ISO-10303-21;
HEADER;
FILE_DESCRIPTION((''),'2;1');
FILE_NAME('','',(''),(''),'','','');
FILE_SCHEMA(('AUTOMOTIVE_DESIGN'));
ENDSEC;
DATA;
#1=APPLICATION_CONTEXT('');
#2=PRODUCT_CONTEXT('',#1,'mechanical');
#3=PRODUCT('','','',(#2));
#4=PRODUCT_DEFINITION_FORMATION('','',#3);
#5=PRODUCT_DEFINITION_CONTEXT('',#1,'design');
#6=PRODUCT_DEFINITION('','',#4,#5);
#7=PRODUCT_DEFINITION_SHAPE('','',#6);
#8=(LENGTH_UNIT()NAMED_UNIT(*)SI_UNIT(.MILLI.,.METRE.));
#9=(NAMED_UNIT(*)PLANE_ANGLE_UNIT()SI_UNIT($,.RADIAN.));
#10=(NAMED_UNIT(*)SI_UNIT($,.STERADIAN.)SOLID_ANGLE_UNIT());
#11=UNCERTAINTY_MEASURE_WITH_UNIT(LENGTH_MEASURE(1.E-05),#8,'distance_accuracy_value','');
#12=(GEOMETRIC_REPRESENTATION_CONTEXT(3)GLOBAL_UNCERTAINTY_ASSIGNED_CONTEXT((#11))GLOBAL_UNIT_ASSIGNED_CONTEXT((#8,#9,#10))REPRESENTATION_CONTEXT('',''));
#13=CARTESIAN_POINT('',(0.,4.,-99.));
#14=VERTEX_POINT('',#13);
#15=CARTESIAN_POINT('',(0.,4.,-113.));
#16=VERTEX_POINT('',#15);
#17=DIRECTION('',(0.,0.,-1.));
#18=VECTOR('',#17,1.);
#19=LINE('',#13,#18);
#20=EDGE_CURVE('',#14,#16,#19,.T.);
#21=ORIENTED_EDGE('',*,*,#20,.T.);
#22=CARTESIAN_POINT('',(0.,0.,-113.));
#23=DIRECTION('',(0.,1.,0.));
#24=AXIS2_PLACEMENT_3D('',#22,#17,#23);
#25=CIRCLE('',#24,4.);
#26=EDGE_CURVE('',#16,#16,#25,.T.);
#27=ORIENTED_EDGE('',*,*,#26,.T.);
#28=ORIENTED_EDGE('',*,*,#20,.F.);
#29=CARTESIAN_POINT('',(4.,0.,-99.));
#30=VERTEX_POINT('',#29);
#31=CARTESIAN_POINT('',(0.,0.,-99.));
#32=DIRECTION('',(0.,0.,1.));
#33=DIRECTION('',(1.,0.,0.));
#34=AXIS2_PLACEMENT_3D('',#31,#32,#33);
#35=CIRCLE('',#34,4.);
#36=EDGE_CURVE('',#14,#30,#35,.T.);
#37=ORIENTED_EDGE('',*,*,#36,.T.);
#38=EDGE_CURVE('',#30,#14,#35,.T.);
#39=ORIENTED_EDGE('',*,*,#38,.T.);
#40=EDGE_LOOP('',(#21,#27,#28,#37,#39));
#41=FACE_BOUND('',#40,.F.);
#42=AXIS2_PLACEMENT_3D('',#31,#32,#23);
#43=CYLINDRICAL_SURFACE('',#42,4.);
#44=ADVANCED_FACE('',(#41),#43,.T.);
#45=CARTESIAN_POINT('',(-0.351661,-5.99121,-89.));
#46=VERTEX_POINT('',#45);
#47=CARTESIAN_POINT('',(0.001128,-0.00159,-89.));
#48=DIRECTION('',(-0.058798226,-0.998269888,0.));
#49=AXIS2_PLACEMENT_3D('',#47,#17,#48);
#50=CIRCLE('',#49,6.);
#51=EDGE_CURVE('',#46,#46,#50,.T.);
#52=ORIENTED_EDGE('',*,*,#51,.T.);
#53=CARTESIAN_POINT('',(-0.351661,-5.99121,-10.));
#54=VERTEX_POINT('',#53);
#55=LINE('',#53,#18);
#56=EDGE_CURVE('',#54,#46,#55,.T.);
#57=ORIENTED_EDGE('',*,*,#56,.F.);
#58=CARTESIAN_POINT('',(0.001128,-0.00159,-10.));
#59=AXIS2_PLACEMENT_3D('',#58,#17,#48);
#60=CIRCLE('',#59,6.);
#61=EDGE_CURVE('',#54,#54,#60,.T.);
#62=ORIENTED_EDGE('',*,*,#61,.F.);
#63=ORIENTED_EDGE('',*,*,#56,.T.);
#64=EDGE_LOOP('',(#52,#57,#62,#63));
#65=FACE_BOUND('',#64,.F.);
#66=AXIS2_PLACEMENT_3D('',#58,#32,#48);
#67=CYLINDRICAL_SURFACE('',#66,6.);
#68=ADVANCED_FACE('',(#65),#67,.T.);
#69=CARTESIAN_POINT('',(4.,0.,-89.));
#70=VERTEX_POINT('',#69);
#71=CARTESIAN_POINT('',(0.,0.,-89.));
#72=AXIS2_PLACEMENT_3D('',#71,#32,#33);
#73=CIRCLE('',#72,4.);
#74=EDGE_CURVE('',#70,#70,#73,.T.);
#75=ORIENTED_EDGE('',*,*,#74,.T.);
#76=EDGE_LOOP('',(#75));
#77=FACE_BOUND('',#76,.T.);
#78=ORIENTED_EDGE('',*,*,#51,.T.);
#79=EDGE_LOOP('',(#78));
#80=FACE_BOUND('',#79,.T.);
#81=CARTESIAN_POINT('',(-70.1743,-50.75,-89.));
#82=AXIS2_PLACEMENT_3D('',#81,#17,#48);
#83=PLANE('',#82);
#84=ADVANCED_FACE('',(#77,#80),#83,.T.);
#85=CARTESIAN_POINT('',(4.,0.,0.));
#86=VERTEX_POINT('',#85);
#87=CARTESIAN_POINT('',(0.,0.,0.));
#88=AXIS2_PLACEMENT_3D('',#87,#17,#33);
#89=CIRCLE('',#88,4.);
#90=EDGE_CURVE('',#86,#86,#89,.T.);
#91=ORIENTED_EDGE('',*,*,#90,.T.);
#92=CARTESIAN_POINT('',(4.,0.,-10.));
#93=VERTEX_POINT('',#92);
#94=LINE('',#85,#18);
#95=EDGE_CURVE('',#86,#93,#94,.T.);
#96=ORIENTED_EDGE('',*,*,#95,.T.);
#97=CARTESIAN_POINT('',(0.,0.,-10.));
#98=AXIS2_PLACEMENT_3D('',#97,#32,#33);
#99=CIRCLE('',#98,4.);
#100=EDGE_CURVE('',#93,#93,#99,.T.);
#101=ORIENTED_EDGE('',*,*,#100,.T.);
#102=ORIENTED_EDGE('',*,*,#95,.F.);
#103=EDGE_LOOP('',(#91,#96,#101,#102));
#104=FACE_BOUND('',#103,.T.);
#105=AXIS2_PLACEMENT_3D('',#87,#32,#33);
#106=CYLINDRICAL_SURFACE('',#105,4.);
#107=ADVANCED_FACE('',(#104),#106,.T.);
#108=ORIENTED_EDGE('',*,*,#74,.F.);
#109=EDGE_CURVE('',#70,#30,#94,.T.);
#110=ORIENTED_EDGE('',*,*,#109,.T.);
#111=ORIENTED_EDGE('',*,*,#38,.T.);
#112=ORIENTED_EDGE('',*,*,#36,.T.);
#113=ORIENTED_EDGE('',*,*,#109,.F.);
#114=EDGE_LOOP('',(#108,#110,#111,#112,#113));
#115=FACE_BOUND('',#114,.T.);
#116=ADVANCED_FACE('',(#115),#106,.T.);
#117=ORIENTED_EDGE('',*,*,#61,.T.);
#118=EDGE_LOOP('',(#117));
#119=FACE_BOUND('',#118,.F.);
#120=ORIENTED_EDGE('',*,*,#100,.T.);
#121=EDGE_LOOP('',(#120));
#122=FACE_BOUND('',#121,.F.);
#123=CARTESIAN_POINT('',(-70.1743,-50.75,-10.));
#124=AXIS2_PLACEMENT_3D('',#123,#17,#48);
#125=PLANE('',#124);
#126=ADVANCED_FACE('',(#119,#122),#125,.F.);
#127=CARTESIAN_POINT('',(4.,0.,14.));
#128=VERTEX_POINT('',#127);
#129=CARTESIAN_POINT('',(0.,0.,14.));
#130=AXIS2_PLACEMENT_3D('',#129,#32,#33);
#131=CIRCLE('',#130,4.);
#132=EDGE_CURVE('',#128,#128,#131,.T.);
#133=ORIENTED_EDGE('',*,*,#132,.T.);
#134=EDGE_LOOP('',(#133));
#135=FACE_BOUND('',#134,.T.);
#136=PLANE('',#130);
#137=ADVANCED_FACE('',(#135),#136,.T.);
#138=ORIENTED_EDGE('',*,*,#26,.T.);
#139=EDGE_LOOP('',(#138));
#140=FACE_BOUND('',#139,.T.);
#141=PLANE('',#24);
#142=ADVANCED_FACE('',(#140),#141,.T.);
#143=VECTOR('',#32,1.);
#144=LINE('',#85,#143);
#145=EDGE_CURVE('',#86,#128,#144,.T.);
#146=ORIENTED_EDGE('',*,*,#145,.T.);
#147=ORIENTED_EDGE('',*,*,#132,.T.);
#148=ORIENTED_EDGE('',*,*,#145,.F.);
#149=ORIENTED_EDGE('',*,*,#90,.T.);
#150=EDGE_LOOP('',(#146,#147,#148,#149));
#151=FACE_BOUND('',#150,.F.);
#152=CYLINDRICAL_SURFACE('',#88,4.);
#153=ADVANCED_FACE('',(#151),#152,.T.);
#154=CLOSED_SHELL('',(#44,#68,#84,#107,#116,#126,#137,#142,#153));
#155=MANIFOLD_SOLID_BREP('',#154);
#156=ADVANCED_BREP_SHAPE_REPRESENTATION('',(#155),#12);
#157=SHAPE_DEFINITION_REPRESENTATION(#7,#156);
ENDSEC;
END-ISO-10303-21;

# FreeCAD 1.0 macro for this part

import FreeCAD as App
import Part
import Sketcher
Q = App.Units.Quantity

doc = App.newDocument("Part")
body = doc.addObject("PartDesign::Body", "Body")

sketch1 = doc.addObject("Sketcher::SketchObject", "Sketch")
body.addObject(sketch1)
sketch1.AttachmentSupport = (doc.XY_Plane, [""])
sketch1.MapMode = "FlatFace"
sketch1.addGeometry(Part.Circle(App.Vector(0, 0, 0), App.Vector(0, 0, 1), 4), False)
sketch1.addConstraint(Sketcher.Constraint("Coincident", 0, 3, -1, 1))
sketch1.addConstraint(Sketcher.Constraint("Diameter", 0, Q("8 mm")))
pad1 = doc.addObject("PartDesign::Pad", "Pad")
body.addObject(pad1)
pad1.Profile = sketch1
pad1.Length = 99
pad1.Reversed = True

sketch2 = doc.addObject("Sketcher::SketchObject", "Sketch001")
body.addObject(sketch2)
sketch2.AttachmentSupport = (doc.XY_Plane, [""])
sketch2.MapMode = "FlatFace"
sketch2.addGeometry(Part.Circle(App.Vector(0, 0, 0), App.Vector(0, 0, 1), 4), False)
sketch2.addConstraint(Sketcher.Constraint("Coincident", 0, 3, -1, 1))
sketch2.addConstraint(Sketcher.Constraint("Diameter", 0, Q("8 mm")))
pad2 = doc.addObject("PartDesign::Pad", "Pad001")
body.addObject(pad2)
pad2.Profile = sketch2
pad2.Length = 14

sketch3 = doc.addObject("Sketcher::SketchObject", "Sketch002")
body.addObject(sketch3)
sketch3.AttachmentSupport = (doc.XY_Plane, [""])
sketch3.MapMode = "FlatFace"
sketch3.AttachmentOffset = App.Placement(App.Vector(0, 0, -99), App.Rotation())
sketch3.addGeometry(Part.Circle(App.Vector(0, 0, 0), App.Vector(0, 0, 1), 4), False)
sketch3.addConstraint(Sketcher.Constraint("Coincident", 0, 3, -1, 1))
sketch3.addConstraint(Sketcher.Constraint("Diameter", 0, Q("8 mm")))
pad3 = doc.addObject("PartDesign::Pad", "Pad002")
body.addObject(pad3)
pad3.Profile = sketch3
pad3.Length = 14
pad3.Reversed = True

sketch4 = doc.addObject("Sketcher::SketchObject", "Sketch003")
body.addObject(sketch4)
sketch4.AttachmentSupport = (doc.XY_Plane, [""])
sketch4.MapMode = "FlatFace"
sketch4.AttachmentOffset = App.Placement(App.Vector(0, 0, -10), App.Rotation())
sketch4.addGeometry(Part.Circle(App.Vector(0, 0, 0), App.Vector(0, 0, 1), 6), False)
sketch4.addConstraint(Sketcher.Constraint("Diameter", 0, Q("12 mm")))
sketch4.addConstraint(Sketcher.Constraint("DistanceX", -1, 1, 0, 3, Q("0.0011 mm")))
sketch4.addConstraint(Sketcher.Constraint("DistanceY", 0, 3, -1, 1, Q("0.0016 mm")))
pad4 = doc.addObject("PartDesign::Pad", "Pad003")
body.addObject(pad4)
pad4.Profile = sketch4
pad4.Length = 79
pad4.Reversed = True

doc.recompute()
